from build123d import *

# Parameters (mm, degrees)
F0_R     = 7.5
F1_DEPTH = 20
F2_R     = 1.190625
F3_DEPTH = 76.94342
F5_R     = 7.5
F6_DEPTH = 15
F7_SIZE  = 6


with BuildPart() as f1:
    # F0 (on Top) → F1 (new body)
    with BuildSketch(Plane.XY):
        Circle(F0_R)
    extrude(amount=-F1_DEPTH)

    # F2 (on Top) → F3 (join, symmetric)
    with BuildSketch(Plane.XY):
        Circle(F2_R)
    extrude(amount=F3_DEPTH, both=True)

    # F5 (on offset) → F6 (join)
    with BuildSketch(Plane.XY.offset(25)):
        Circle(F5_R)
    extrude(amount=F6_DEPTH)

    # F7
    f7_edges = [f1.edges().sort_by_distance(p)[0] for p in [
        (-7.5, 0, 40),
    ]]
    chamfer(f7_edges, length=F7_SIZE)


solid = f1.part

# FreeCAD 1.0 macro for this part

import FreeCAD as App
import Part
import Sketcher

V = App.Vector


def edges_at(feature, points):
    """Names of the edges that pass closest to the given points."""
    edges = feature.Shape.Edges
    near = lambda p: min(range(len(edges)), key=lambda i: edges[i].distToShape(Part.Vertex(*p))[0])
    return sorted({f"Edge{near(p) + 1}" for p in points})

doc = App.newDocument("Part")
body = doc.addObject("PartDesign::Body", "Body")

# Sketch on XY plane
sketch1 = body.newObject("Sketcher::SketchObject", "Sketch")
sketch1.AttachmentSupport = (doc.getObject("XY_Plane"), [""])
sketch1.MapMode = "FlatFace"
sketch1.addGeometry(Part.Circle(V(0, 0, 0), V(0, 0, 1), 8), False)
sketch1.addConstraint([
    Sketcher.Constraint("Coincident", 0, 3, -1, 1),
    Sketcher.Constraint("Diameter", 0, 15.0),
])
pad1 = body.newObject("PartDesign::Pad", "Pad")
pad1.Profile = sketch1
pad1.Length = 20
pad1.Reversed = True

# Sketch on XY plane
sketch2 = body.newObject("Sketcher::SketchObject", "Sketch001")
sketch2.AttachmentSupport = (doc.getObject("XY_Plane"), [""])
sketch2.MapMode = "FlatFace"
sketch2.addGeometry(Part.Circle(V(0, 0, 0), V(0, 0, 1), 1.2), False)
sketch2.addConstraint([
    Sketcher.Constraint("Coincident", 0, 3, -1, 1),
    Sketcher.Constraint("Diameter", 0, 2.38125),
])
pad2 = body.newObject("PartDesign::Pad", "Pad001")
pad2.Profile = sketch2
pad2.Length = 153.88684
pad2.Midplane = True

# Sketch on XY plane
sketch3 = body.newObject("Sketcher::SketchObject", "Sketch002")
sketch3.AttachmentSupport = (doc.getObject("XY_Plane"), [""])
sketch3.MapMode = "FlatFace"
sketch3.AttachmentOffset = App.Placement(V(0, 0, 25), App.Rotation())
sketch3.addGeometry(Part.Circle(V(0, 0, 0), V(0, 0, 1), 8), False)
sketch3.addConstraint([
    Sketcher.Constraint("Coincident", 0, 3, -1, 1),
    Sketcher.Constraint("Diameter", 0, 15.0),
])
pad3 = body.newObject("PartDesign::Pad", "Pad002")
pad3.Profile = sketch3
pad3.Length = 15
doc.recompute()

chamfer = body.newObject("PartDesign::Chamfer", "Chamfer")
chamfer.Base = (pad3, edges_at(pad3, [(-7.5, 0, 40)]))
chamfer.Size = 6

doc.recompute()
